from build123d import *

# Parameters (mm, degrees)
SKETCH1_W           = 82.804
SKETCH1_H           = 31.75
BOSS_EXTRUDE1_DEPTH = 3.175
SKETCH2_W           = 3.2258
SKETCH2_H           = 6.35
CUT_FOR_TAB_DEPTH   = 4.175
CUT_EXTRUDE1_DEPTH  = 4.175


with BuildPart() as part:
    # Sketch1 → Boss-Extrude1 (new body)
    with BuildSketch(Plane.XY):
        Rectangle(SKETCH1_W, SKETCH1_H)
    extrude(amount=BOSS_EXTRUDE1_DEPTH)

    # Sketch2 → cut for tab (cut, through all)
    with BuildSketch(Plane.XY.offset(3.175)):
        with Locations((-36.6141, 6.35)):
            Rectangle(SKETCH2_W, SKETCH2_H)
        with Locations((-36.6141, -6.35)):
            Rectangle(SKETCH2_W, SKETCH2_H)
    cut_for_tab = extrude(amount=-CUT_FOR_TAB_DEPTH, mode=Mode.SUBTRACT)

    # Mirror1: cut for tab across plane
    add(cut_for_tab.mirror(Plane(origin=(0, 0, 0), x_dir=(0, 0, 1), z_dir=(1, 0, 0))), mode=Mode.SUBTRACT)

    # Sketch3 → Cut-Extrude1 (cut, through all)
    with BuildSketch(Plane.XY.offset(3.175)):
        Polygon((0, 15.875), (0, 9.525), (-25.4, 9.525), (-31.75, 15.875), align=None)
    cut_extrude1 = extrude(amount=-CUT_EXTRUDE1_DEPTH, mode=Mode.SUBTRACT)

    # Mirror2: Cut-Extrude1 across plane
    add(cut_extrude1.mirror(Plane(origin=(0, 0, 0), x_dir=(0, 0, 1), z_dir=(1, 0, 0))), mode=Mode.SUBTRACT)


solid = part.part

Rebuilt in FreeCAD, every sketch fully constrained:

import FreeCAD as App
import Part
import Sketcher

V = App.Vector
Q = App.Units.Quantity


def add_polygon(sketch, points):
    """Adds a closed chain of lines whose ends are joined by coincident constraints."""
    first, n = sketch.GeometryCount, len(points)
    for a, b in zip(points, points[1:] + points[:1]):
        sketch.addGeometry(Part.LineSegment(App.Vector(*a, 0), App.Vector(*b, 0)), False)
    for i in range(n):
        sketch.addConstraint(Sketcher.Constraint("Coincident", first + i, 2, first + (i + 1) % n, 1))

doc = App.newDocument("Part")
body = doc.addObject("PartDesign::Body", "Body")

# Sketch on XY plane
sketch1 = body.newObject("Sketcher::SketchObject", "Sketch")
sketch1.AttachmentSupport = (doc.getObject("XY_Plane"), [""])
sketch1.MapMode = "FlatFace"
add_polygon(sketch1, [(-41.402, 15.875), (-41.402, -15.875), (41.402, -15.875), (41.402, 15.875)])  # lines 0-3
sketch1.addConstraint(Sketcher.Constraint("Vertical", 0))
sketch1.addConstraint(Sketcher.Constraint("Horizontal", 1))
sketch1.addConstraint(Sketcher.Constraint("Vertical", 2))
sketch1.addConstraint(Sketcher.Constraint("Horizontal", 3))
sketch1.addConstraint(Sketcher.Constraint("Symmetric", 0, 2, 2, 2, -1, 1))
sketch1.addConstraint(Sketcher.Constraint("DistanceX", 1, 1, 1, 2, Q("3.26 in")))
sketch1.addConstraint(Sketcher.Constraint("DistanceY", 0, 2, 0, 1, Q("1.25 in")))
pad1 = body.newObject("PartDesign::Pad", "Pad")
pad1.Profile = sketch1
pad1.Length = Q("0.125 in")

# Sketch on XY plane
sketch2 = body.newObject("Sketcher::SketchObject", "Sketch001")
sketch2.AttachmentSupport = (doc.getObject("XY_Plane"), [""])
sketch2.MapMode = "FlatFace"
sketch2.AttachmentOffset = App.Placement(V(0, 0, 0.125 * 25.4), App.Rotation())
add_polygon(sketch2, [(-38.227, 9.525), (-38.227, 3.175), (-35.0012, 3.175), (-35.0012, 9.525)])  # lines 0-3
add_polygon(sketch2, [(-38.227, -3.175), (-38.227, -9.525), (-35.0012, -9.525), (-35.0012, -3.175)])  # lines 4-7
sketch2.addConstraint(Sketcher.Constraint("Vertical", 0))
sketch2.addConstraint(Sketcher.Constraint("Horizontal", 1))
sketch2.addConstraint(Sketcher.Constraint("Vertical", 2))
sketch2.addConstraint(Sketcher.Constraint("Horizontal", 3))
sketch2.addConstraint(Sketcher.Constraint("Vertical", 4))
sketch2.addConstraint(Sketcher.Constraint("Horizontal", 5))
sketch2.addConstraint(Sketcher.Constraint("Vertical", 6))
sketch2.addConstraint(Sketcher.Constraint("Horizontal", 7))
sketch2.addConstraint(Sketcher.Constraint("Symmetric", 3, 2, 4, 2, -1))
sketch2.addConstraint(Sketcher.Constraint("Symmetric", 1, 2, 6, 2, -1))
sketch2.addConstraint(Sketcher.Constraint("DistanceY", 0, 2, 0, 1, Q("0.25 in")))
sketch2.addConstraint(Sketcher.Constraint("DistanceY", 4, 2, 0, 2, Q("0.5 in")))
sketch2.addConstraint(Sketcher.Constraint("DistanceX", 1, 1, 1, 2, Q("0.127 in")))
sketch2.addConstraint(Sketcher.Constraint("DistanceX", 0, 2, -1, 1, Q("1.505 in")))
pocket1 = body.newObject("PartDesign::Pocket", "Pocket")
pocket1.Profile = sketch2
pocket1.Type = "ThroughAll"
doc.recompute()

mirrored = body.newObject("PartDesign::Mirrored", "Mirrored")
mirrored.Originals = [pocket1]
mirrored.MirrorPlane = (doc.getObject("YZ_Plane"), [""])
body.Tip = mirrored

# Sketch on XY plane
sketch3 = body.newObject("Sketcher::SketchObject", "Sketch002")
sketch3.AttachmentSupport = (doc.getObject("XY_Plane"), [""])
sketch3.MapMode = "FlatFace"
sketch3.AttachmentOffset = App.Placement(V(0, 0, 0.125 * 25.4), App.Rotation())
add_polygon(sketch3, [(0, 9.525), (0, 15.875), (-31.75, 15.875), (-25.4, 9.525)])  # lines 0-3
sketch3.addConstraint(Sketcher.Constraint("Vertical", 0))
sketch3.addConstraint(Sketcher.Constraint("Horizontal", 1))
sketch3.addConstraint(Sketcher.Constraint("Horizontal", 3))
sketch3.addConstraint(Sketcher.Constraint("PointOnObject", 0, 2, -2))
sketch3.addConstraint(Sketcher.Constraint("DistanceX", 3, 1, 3, 2, Q("1 in")))
sketch3.addConstraint(Sketcher.Constraint("Angle", 2, Q("-45 deg")))
sketch3.addConstraint(Sketcher.Constraint("DistanceX", 1, 2, 1, 1, Q("1.25 in")))
sketch3.addConstraint(Sketcher.Constraint("DistanceY", -1, 1, 0, 2, Q("0.625 in")))
pocket2 = body.newObject("PartDesign::Pocket", "Pocket001")
pocket2.Profile = sketch3
pocket2.Type = "ThroughAll"
doc.recompute()

mirrored2 = body.newObject("PartDesign::Mirrored", "Mirrored001")
mirrored2.Originals = [pocket2]
mirrored2.MirrorPlane = (doc.getObject("YZ_Plane"), [""])
body.Tip = mirrored2

doc.recompute()
